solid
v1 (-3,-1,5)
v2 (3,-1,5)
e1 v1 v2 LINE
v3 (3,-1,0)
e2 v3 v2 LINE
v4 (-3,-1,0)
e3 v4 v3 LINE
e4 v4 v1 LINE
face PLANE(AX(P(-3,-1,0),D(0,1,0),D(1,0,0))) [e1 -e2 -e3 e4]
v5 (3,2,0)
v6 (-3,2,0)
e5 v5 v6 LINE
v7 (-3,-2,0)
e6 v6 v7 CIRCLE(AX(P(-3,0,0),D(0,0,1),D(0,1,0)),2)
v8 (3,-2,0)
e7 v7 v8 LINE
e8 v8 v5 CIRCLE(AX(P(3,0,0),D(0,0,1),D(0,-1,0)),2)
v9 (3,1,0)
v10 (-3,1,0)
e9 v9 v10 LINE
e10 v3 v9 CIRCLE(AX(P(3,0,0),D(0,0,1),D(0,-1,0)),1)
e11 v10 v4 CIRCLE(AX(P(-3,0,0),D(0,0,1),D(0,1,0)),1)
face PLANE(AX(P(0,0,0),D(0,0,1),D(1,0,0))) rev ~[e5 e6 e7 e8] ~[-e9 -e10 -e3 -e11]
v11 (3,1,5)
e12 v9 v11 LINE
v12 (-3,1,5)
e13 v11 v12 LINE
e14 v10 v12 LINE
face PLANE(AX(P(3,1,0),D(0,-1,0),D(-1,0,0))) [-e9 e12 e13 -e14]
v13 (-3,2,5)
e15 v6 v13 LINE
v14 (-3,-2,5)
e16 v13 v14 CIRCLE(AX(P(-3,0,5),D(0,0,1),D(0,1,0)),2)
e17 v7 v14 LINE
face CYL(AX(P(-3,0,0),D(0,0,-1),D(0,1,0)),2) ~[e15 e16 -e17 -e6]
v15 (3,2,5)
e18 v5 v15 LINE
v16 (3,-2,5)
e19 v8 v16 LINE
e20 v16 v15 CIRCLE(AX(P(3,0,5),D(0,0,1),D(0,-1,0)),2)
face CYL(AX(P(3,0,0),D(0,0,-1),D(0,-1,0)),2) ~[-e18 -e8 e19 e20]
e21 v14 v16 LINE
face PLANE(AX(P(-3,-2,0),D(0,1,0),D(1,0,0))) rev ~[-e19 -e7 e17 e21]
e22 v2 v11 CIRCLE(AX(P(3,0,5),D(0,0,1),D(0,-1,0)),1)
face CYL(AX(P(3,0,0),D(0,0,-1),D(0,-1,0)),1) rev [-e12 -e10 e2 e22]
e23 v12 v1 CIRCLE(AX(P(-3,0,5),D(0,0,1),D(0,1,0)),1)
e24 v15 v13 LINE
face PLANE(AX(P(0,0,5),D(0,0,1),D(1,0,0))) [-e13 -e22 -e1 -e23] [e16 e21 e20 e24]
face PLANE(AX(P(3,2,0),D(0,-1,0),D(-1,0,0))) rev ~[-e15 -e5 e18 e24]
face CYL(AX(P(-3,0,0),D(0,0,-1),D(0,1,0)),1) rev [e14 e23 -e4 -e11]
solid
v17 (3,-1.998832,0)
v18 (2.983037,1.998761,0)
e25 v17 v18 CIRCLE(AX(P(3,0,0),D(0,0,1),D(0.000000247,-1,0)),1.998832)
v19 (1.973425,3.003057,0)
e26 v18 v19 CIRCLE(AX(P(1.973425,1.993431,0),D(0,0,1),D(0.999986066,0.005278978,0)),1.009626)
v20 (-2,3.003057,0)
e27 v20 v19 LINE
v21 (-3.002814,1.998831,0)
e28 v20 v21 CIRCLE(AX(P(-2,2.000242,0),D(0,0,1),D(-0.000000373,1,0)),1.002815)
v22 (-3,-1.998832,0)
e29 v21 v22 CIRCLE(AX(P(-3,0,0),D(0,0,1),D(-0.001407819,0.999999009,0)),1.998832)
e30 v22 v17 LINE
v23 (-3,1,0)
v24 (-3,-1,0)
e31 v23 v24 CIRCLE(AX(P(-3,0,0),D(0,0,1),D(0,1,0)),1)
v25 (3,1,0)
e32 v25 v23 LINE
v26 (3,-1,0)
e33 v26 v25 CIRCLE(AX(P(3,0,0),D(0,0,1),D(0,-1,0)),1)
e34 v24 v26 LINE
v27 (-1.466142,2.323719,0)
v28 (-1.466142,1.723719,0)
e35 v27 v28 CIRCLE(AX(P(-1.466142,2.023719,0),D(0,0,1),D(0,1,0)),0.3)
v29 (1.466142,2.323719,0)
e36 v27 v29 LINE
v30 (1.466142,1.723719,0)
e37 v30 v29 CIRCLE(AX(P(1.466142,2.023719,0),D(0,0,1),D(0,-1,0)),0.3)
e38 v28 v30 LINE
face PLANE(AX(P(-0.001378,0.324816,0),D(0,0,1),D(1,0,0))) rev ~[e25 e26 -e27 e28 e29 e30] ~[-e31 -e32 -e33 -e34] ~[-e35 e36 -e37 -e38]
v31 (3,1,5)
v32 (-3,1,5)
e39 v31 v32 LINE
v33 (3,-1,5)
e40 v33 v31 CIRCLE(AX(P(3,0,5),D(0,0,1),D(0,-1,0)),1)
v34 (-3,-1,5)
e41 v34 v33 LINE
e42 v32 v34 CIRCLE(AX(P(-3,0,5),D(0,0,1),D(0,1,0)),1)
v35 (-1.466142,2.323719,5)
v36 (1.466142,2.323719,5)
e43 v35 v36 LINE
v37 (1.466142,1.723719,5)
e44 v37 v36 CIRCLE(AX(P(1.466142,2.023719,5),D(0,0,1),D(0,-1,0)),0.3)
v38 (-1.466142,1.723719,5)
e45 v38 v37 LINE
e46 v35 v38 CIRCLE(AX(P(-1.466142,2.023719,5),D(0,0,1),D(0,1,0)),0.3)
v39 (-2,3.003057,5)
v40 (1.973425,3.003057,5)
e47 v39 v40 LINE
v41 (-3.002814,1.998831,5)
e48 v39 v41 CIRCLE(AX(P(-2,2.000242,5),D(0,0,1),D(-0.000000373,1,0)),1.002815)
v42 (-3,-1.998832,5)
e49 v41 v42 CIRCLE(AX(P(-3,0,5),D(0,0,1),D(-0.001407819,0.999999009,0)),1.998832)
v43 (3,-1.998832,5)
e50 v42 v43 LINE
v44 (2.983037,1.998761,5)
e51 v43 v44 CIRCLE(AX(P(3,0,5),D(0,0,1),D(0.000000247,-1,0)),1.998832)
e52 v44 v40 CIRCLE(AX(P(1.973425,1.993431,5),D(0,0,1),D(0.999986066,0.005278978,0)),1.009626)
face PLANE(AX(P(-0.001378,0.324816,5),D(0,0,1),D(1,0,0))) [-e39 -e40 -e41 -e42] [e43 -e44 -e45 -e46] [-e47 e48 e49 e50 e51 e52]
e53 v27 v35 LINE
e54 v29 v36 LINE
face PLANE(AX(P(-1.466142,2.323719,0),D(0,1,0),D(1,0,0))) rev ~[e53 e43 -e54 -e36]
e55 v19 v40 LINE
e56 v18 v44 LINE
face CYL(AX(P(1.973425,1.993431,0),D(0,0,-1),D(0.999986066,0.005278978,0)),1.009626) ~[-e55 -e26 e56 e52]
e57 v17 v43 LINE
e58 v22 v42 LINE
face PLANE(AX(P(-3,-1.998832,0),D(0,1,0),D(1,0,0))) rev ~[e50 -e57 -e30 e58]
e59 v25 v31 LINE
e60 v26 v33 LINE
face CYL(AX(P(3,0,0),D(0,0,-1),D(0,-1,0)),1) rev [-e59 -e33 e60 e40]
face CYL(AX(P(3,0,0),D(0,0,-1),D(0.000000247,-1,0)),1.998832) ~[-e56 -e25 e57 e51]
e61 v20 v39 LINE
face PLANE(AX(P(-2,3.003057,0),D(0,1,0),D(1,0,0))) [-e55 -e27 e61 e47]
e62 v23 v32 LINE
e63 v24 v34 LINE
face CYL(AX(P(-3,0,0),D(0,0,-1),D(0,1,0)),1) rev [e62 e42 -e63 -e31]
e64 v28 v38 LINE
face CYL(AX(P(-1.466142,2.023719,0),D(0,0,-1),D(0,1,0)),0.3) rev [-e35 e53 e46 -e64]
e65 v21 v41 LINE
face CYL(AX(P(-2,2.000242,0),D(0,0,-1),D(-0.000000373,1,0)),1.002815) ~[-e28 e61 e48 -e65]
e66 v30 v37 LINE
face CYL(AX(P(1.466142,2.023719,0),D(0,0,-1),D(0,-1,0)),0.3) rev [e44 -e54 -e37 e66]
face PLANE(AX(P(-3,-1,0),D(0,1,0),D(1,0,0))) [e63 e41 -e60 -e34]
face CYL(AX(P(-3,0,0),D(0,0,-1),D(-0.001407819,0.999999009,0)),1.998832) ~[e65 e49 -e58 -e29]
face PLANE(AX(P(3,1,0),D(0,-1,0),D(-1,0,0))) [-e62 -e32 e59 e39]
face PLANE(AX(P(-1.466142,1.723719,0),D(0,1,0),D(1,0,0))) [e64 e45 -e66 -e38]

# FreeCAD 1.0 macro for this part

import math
import FreeCAD as App
import Part
import Sketcher

doc = App.newDocument("Part")
body = doc.addObject("PartDesign::Body", "Body")

# Sketch on XY plane
sketch1 = doc.addObject("Sketcher::SketchObject", "Sketch")
body.addObject(sketch1)
sketch1.AttachmentSupport = (doc.XY_Plane, [""])
sketch1.MapMode = "FlatFace"
sketch1.addGeometry([
    Part.ArcOfCircle(Part.Circle(App.Vector(-3, 0, 0), App.Vector(0, 0, 1), 2), math.radians(90), math.radians(270)),  # 0
    Part.LineSegment(App.Vector(-3, -2, 0), App.Vector(3, -2, 0)),  # 1
    Part.ArcOfCircle(Part.Circle(App.Vector(3, 0, 0), App.Vector(0, 0, 1), 2), math.radians(-90), math.radians(90)),  # 2
    Part.LineSegment(App.Vector(3, 2, 0), App.Vector(-3, 2, 0)),  # 3
    Part.ArcOfCircle(Part.Circle(App.Vector(-3, 0, 0), App.Vector(0, 0, 1), 1), math.radians(90), math.radians(270)),  # 4
    Part.LineSegment(App.Vector(-3, 1, 0), App.Vector(3, 1, 0)),  # 5
    Part.ArcOfCircle(Part.Circle(App.Vector(3, 0, 0), App.Vector(0, 0, 1), 1), math.radians(-90), math.radians(90)),  # 6
    Part.LineSegment(App.Vector(3, -1, 0), App.Vector(-3, -1, 0)),  # 7
], False)
sketch1.addConstraint([
    Sketcher.Constraint("Tangent", 0, 2, 1, 1),
    Sketcher.Constraint("Tangent", 1, 2, 2, 1),
    Sketcher.Constraint("Tangent", 2, 2, 3, 1),
    Sketcher.Constraint("Tangent", 3, 2, 0, 1),
    Sketcher.Constraint("Tangent", 4, 1, 5, 1),
    Sketcher.Constraint("Tangent", 5, 2, 6, 2),
    Sketcher.Constraint("Tangent", 6, 1, 7, 1),
    Sketcher.Constraint("Tangent", 7, 2, 4, 2),
    Sketcher.Constraint("Horizontal", 1),
    Sketcher.Constraint("Horizontal", 3),
    Sketcher.Constraint("Horizontal", 5),
    Sketcher.Constraint("Horizontal", 7),
    Sketcher.Constraint("Coincident", 4, 3, 0, 3),
    Sketcher.Constraint("Symmetric", 0, 3, 2, 3, -1, 1),
    Sketcher.Constraint("Vertical", 6, 3, 1, 2),
    Sketcher.Constraint("Radius", 0, 2.0),
    Sketcher.Constraint("Radius", 4, 1.0),
    Sketcher.Constraint("DistanceX", 1, 1, 1, 2, 6.0),
])
pad1 = doc.addObject("PartDesign::Pad", "Pad")
body.addObject(pad1)
pad1.Profile = sketch1
pad1.Length = 5
body2 = doc.addObject("PartDesign::Body", "Body001")

# Sketch on XY plane
sketch2 = doc.addObject("Sketcher::SketchObject", "Sketch001")
body2.addObject(sketch2)
sketch2.AttachmentSupport = (doc.getObject("XY_Plane001"), [""])
sketch2.MapMode = "FlatFace"
sketch2.addGeometry([
    Part.ArcOfCircle(Part.Circle(App.Vector(-3, 0, 0), App.Vector(0, 0, 1), 2), math.radians(90), math.radians(270)),  # 0
    Part.LineSegment(App.Vector(-3, -2, 0), App.Vector(3, -2, 0)),  # 1
    Part.ArcOfCircle(Part.Circle(App.Vector(3, 0, 0), App.Vector(0, 0, 1), 2), math.radians(-90), math.radians(90)),  # 2
    Part.ArcOfCircle(Part.Circle(App.Vector(1.97, 1.99, 0), App.Vector(0, 0, 1), 1.01), math.radians(0), math.radians(90)),  # 3
    Part.LineSegment(App.Vector(1.97, 3, 0), App.Vector(-2, 3, 0)),  # 4
    Part.ArcOfCircle(Part.Circle(App.Vector(-2, 2, 0), App.Vector(0, 0, 1), 1), math.radians(90), math.radians(180)),  # 5
    Part.ArcOfCircle(Part.Circle(App.Vector(-3, 0, 0), App.Vector(0, 0, 1), 1), math.radians(90), math.radians(270)),  # 6
    Part.LineSegment(App.Vector(-3, 1, 0), App.Vector(3, 1, 0)),  # 7
    Part.ArcOfCircle(Part.Circle(App.Vector(3, 0, 0), App.Vector(0, 0, 1), 1), math.radians(-90), math.radians(90)),  # 8
    Part.LineSegment(App.Vector(3, -1, 0), App.Vector(-3, -1, 0)),  # 9
    Part.ArcOfCircle(Part.Circle(App.Vector(-1.47, 2.02, 0), App.Vector(0, 0, 1), 0.3), math.radians(90), math.radians(270)),  # 10
    Part.LineSegment(App.Vector(-1.47, 2.32, 0), App.Vector(1.47, 2.32, 0)),  # 11
    Part.ArcOfCircle(Part.Circle(App.Vector(1.47, 2.02, 0), App.Vector(0, 0, 1), 0.3), math.radians(-90), math.radians(90)),  # 12
    Part.LineSegment(App.Vector(1.47, 1.72, 0), App.Vector(-1.47, 1.72, 0)),  # 13
], False)
sketch2.addConstraint([
    Sketcher.Constraint("Tangent", 0, 2, 1, 1),
    Sketcher.Constraint("Tangent", 1, 2, 2, 1),
    Sketcher.Constraint("Coincident", 2, 2, 3, 1),
    Sketcher.Constraint("Tangent", 3, 2, 4, 1),
    Sketcher.Constraint("Tangent", 4, 2, 5, 1),
    Sketcher.Constraint("Coincident", 5, 2, 0, 1),
    Sketcher.Constraint("Tangent", 6, 1, 7, 1),
    Sketcher.Constraint("Tangent", 7, 2, 8, 2),
    Sketcher.Constraint("Tangent", 8, 1, 9, 1),
    Sketcher.Constraint("Tangent", 9, 2, 6, 2),
    Sketcher.Constraint("Tangent", 10, 1, 11, 1),
    Sketcher.Constraint("Tangent", 11, 2, 12, 2),
    Sketcher.Constraint("Tangent", 12, 1, 13, 1),
    Sketcher.Constraint("Tangent", 13, 2, 10, 2),
    Sketcher.Constraint("Horizontal", 1),
    Sketcher.Constraint("Horizontal", 4),
    Sketcher.Constraint("Horizontal", 7),
    Sketcher.Constraint("Horizontal", 9),
    Sketcher.Constraint("Horizontal", 11),
    Sketcher.Constraint("Horizontal", 13),
    Sketcher.Constraint("Coincident", 6, 3, 0, 3),
    Sketcher.Constraint("Coincident", 8, 3, 2, 3),
    Sketcher.Constraint("Symmetric", 0, 3, 2, 3, -1, 1),
    Sketcher.Constraint("Radius", 6, 1.0),
    Sketcher.Constraint("Radius", 10, 0.3),
    Sketcher.Constraint("DistanceX", 1, 1, 1, 2, 6.0),
    Sketcher.Constraint("DistanceX", 5, 3, -1, 1, 2.0),
    Sketcher.Constraint("Radius", 0, 1.998832),
    Sketcher.Constraint("Radius", 3, 1.009626),
    Sketcher.Constraint("Radius", 5, 1.002815),
    Sketcher.Constraint("DistanceX", 4, 2, 4, 1, 3.973425),
    Sketcher.Constraint("DistanceX", 11, 1, 11, 2, 2.932284),
    Sketcher.Constraint("DistanceY", -1, 1, 3, 3, 1.993431),
    Sketcher.Constraint("DistanceY", -1, 1, 10, 3, 2.023719),
    Sketcher.Constraint("DistanceX", 0, 3, 10, 3, 1.533858),
])
pad2 = doc.addObject("PartDesign::Pad", "Pad001")
body2.addObject(pad2)
pad2.Profile = sketch2
pad2.Length = 5

doc.recompute()
